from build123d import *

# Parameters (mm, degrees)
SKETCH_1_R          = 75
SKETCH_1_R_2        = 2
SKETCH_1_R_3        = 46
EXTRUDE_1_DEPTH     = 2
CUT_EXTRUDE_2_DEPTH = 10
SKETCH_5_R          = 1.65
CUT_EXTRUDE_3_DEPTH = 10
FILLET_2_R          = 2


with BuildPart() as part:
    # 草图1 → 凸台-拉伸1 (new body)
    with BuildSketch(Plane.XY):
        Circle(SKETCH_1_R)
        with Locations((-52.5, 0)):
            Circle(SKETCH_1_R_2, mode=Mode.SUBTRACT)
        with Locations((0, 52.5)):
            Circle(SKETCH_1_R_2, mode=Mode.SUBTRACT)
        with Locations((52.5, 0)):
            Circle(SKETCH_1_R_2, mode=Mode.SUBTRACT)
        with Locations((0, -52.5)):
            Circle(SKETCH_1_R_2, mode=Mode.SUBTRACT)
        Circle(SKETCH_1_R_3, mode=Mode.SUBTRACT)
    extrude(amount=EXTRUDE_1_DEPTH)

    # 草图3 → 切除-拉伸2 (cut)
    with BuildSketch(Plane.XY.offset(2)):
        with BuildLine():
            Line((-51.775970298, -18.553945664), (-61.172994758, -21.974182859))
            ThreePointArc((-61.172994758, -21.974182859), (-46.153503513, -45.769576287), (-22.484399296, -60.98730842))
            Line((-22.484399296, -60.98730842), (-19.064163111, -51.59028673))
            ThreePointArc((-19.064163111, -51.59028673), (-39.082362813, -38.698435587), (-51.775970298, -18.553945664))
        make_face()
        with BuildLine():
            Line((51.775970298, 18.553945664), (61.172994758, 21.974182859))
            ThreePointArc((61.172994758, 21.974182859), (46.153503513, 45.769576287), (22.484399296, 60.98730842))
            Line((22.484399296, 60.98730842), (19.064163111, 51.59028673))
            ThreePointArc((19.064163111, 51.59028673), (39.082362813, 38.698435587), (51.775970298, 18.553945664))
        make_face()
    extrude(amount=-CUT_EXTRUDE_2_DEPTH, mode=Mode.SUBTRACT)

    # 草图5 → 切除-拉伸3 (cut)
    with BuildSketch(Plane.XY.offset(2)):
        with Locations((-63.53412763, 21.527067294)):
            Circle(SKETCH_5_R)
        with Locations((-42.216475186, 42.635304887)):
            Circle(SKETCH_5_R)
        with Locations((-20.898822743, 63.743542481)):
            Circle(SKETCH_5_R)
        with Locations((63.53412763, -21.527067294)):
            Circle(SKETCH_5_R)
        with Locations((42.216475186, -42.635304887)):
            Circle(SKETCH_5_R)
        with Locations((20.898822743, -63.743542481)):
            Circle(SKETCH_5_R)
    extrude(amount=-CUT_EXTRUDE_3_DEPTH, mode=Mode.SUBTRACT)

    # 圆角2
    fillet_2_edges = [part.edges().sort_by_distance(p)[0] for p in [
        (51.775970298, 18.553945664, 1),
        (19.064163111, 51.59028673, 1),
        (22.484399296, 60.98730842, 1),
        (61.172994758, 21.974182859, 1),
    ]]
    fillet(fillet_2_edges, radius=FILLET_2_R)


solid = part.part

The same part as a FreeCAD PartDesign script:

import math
import FreeCAD as App
import Part
import Sketcher
Q = App.Units.Quantity


def edges_at(feature, points):
    """Names of the edges that pass closest to the given points."""
    edges = feature.Shape.Edges
    near = lambda p: min(range(len(edges)), key=lambda i: edges[i].distToShape(Part.Vertex(*p))[0])
    return sorted({f"Edge{near(p) + 1}" for p in points})

doc = App.newDocument("Part")
body = doc.addObject("PartDesign::Body", "Body")

sketch1 = body.newObject("Sketcher::SketchObject", "Sketch")
sketch1.AttachmentSupport = (doc.getObject("XY_Plane"), [""])
sketch1.MapMode = "FlatFace"
sketch1.addGeometry([
    Part.Circle(App.Vector(0, 0, 0), App.Vector(0, 0, 1), 75),
    Part.Circle(App.Vector(0, -52.5, 0), App.Vector(0, 0, 1), 2),
    Part.Circle(App.Vector(-52.5, 0, 0), App.Vector(0, 0, 1), 2),
    Part.Circle(App.Vector(0, 0, 0), App.Vector(0, 0, 1), 46),
    Part.Circle(App.Vector(52.5, 0, 0), App.Vector(0, 0, 1), 2),
    Part.Circle(App.Vector(0, 52.5, 0), App.Vector(0, 0, 1), 2),
], False)
sketch1.addConstraint([
    Sketcher.Constraint("Coincident", 0, 3, -1, 1),
    Sketcher.Constraint("Coincident", 3, 3, -1, 1),
    Sketcher.Constraint("Equal", 1, 2),
    Sketcher.Constraint("Equal", 2, 4),
    Sketcher.Constraint("Equal", 4, 5),
    Sketcher.Constraint("Symmetric", 2, 3, 4, 3, -1, 1),
    Sketcher.Constraint("Symmetric", 1, 3, 5, 3, -1, 1),
    Sketcher.Constraint("PointOnObject", 1, 3, -2),
    Sketcher.Constraint("PointOnObject", 2, 3, -1),
    Sketcher.Constraint("Diameter", 0, 150.0),
    Sketcher.Constraint("Diameter", 1, 4.0),
    Sketcher.Constraint("Diameter", 3, 92.0),
    Sketcher.Constraint("DistanceX", 2, 3, 4, 3, 105.0),
    Sketcher.Constraint("DistanceY", 1, 3, 5, 3, 105.0),
])
pad1 = body.newObject("PartDesign::Pad", "Pad")
pad1.Profile = sketch1
pad1.Length = 2

sketch2 = body.newObject("Sketcher::SketchObject", "Sketch001")
sketch2.AttachmentSupport = (doc.getObject("XY_Plane"), [""])
sketch2.MapMode = "FlatFace"
sketch2.AttachmentOffset = App.Placement(App.Vector(0, 0, 2), App.Rotation())
sketch2.addGeometry([
    Part.LineSegment(App.Vector(-52, -19, 0), App.Vector(-61, -22, 0)),
    Part.ArcOfCircle(Part.Circle(App.Vector(0, 0, 0), App.Vector(0, 0, 1), 65), math.radians(-160), math.radians(-110)),
    Part.LineSegment(App.Vector(-22, -61, 0), App.Vector(-19, -52, 0)),
    Part.ArcOfCircle(Part.Circle(App.Vector(0, 0, 0), App.Vector(0, 0, 1), 55), math.radians(-160), math.radians(-110)),
    Part.LineSegment(App.Vector(52, 19, 0), App.Vector(61, 22, 0)),
    Part.ArcOfCircle(Part.Circle(App.Vector(0, 0, 0), App.Vector(0, 0, 1), 65), math.radians(20), math.radians(70)),
    Part.LineSegment(App.Vector(22, 61, 0), App.Vector(19, 52, 0)),
    Part.ArcOfCircle(Part.Circle(App.Vector(0, 0, 0), App.Vector(0, 0, 1), 55), math.radians(20), math.radians(70)),
], False)
sketch2.addConstraint([
    Sketcher.Constraint("Coincident", 0, 2, 1, 1),
    Sketcher.Constraint("Coincident", 1, 2, 2, 1),
    Sketcher.Constraint("Coincident", 2, 2, 3, 2),
    Sketcher.Constraint("Coincident", 3, 1, 0, 1),
    Sketcher.Constraint("Coincident", 4, 2, 5, 1),
    Sketcher.Constraint("Coincident", 5, 2, 6, 1),
    Sketcher.Constraint("Coincident", 6, 2, 7, 2),
    Sketcher.Constraint("Coincident", 7, 1, 4, 1),
    Sketcher.Constraint("Coincident", 1, 3, -1, 1),
    Sketcher.Constraint("Coincident", 3, 3, -1, 1),
    Sketcher.Constraint("Coincident", 5, 3, -1, 1),
    Sketcher.Constraint("Coincident", 7, 3, -1, 1),
    Sketcher.Constraint("Equal", 1, 5),
    Sketcher.Constraint("Equal", 3, 7),
    Sketcher.Constraint("Parallel", 0, 4),
    Sketcher.Constraint("Parallel", 2, 6),
    Sketcher.Constraint("Radius", 1, 65.0),
    Sketcher.Constraint("Radius", 3, 55.0),
    Sketcher.Constraint("Angle", 0, Q("-160 deg")),
    Sketcher.Constraint("Angle", 2, Q("70 deg")),
    Sketcher.Constraint("DistanceX", 1, 2, -1, 1, 22.484399),
    Sketcher.Constraint("DistanceX", -1, 1, 5, 2, 22.484399),
    Sketcher.Constraint("DistanceX", 3, 1, -1, 1, 51.77597),
    Sketcher.Constraint("DistanceX", -1, 1, 7, 1, 51.77597),
])
pocket1 = body.newObject("PartDesign::Pocket", "Pocket")
pocket1.Profile = sketch2
pocket1.Length = 10

sketch3 = body.newObject("Sketcher::SketchObject", "Sketch002")
sketch3.AttachmentSupport = (doc.getObject("XY_Plane"), [""])
sketch3.MapMode = "FlatFace"
sketch3.AttachmentOffset = App.Placement(App.Vector(0, 0, 2), App.Rotation())
sketch3.addGeometry([
    Part.Circle(App.Vector(-63.5, 21.5, 0), App.Vector(0, 0, 1), 1.6),
    Part.Circle(App.Vector(-42.2, 42.6, 0), App.Vector(0, 0, 1), 1.6),
    Part.Circle(App.Vector(-20.9, 63.7, 0), App.Vector(0, 0, 1), 1.6),
    Part.Circle(App.Vector(63.5, -21.5, 0), App.Vector(0, 0, 1), 1.6),
    Part.Circle(App.Vector(42.2, -42.6, 0), App.Vector(0, 0, 1), 1.6),
    Part.Circle(App.Vector(20.9, -63.7, 0), App.Vector(0, 0, 1), 1.6),
], False)
sketch3.addConstraint([
    Sketcher.Constraint("Equal", 0, 1),
    Sketcher.Constraint("Equal", 1, 2),
    Sketcher.Constraint("Equal", 2, 3),
    Sketcher.Constraint("Equal", 3, 4),
    Sketcher.Constraint("Equal", 4, 5),
    Sketcher.Constraint("Symmetric", 0, 3, 3, 3, -1, 1),
    Sketcher.Constraint("Symmetric", 1, 3, 4, 3, -1, 1),
    Sketcher.Constraint("Symmetric", 2, 3, 5, 3, -1, 1),
    Sketcher.Constraint("Diameter", 0, 3.3),
    Sketcher.Constraint("DistanceX", 2, 3, 3, 3, 84.43295),
    Sketcher.Constraint("DistanceY", 3, 3, 2, 3, 85.27061),
    Sketcher.Constraint("DistanceX", 1, 3, 4, 3, 84.43295),
    Sketcher.Constraint("DistanceY", 4, 3, 1, 3, 85.27061),
    Sketcher.Constraint("DistanceX", 0, 3, -1, 1, 63.534128),
    Sketcher.Constraint("DistanceY", -1, 1, 0, 3, 21.527067),
])
pocket2 = body.newObject("PartDesign::Pocket", "Pocket001")
pocket2.Profile = sketch3
pocket2.Length = 10
doc.recompute()

fillet = body.newObject("PartDesign::Fillet", "Fillet")
fillet.Base = (pocket2, edges_at(pocket2, [
    (51.776, 18.554, 1),
    (19.064, 51.59, 1),
    (22.484, 60.987, 1),
    (61.173, 21.974, 1),
]))
fillet.Radius = 2

doc.recompute()
